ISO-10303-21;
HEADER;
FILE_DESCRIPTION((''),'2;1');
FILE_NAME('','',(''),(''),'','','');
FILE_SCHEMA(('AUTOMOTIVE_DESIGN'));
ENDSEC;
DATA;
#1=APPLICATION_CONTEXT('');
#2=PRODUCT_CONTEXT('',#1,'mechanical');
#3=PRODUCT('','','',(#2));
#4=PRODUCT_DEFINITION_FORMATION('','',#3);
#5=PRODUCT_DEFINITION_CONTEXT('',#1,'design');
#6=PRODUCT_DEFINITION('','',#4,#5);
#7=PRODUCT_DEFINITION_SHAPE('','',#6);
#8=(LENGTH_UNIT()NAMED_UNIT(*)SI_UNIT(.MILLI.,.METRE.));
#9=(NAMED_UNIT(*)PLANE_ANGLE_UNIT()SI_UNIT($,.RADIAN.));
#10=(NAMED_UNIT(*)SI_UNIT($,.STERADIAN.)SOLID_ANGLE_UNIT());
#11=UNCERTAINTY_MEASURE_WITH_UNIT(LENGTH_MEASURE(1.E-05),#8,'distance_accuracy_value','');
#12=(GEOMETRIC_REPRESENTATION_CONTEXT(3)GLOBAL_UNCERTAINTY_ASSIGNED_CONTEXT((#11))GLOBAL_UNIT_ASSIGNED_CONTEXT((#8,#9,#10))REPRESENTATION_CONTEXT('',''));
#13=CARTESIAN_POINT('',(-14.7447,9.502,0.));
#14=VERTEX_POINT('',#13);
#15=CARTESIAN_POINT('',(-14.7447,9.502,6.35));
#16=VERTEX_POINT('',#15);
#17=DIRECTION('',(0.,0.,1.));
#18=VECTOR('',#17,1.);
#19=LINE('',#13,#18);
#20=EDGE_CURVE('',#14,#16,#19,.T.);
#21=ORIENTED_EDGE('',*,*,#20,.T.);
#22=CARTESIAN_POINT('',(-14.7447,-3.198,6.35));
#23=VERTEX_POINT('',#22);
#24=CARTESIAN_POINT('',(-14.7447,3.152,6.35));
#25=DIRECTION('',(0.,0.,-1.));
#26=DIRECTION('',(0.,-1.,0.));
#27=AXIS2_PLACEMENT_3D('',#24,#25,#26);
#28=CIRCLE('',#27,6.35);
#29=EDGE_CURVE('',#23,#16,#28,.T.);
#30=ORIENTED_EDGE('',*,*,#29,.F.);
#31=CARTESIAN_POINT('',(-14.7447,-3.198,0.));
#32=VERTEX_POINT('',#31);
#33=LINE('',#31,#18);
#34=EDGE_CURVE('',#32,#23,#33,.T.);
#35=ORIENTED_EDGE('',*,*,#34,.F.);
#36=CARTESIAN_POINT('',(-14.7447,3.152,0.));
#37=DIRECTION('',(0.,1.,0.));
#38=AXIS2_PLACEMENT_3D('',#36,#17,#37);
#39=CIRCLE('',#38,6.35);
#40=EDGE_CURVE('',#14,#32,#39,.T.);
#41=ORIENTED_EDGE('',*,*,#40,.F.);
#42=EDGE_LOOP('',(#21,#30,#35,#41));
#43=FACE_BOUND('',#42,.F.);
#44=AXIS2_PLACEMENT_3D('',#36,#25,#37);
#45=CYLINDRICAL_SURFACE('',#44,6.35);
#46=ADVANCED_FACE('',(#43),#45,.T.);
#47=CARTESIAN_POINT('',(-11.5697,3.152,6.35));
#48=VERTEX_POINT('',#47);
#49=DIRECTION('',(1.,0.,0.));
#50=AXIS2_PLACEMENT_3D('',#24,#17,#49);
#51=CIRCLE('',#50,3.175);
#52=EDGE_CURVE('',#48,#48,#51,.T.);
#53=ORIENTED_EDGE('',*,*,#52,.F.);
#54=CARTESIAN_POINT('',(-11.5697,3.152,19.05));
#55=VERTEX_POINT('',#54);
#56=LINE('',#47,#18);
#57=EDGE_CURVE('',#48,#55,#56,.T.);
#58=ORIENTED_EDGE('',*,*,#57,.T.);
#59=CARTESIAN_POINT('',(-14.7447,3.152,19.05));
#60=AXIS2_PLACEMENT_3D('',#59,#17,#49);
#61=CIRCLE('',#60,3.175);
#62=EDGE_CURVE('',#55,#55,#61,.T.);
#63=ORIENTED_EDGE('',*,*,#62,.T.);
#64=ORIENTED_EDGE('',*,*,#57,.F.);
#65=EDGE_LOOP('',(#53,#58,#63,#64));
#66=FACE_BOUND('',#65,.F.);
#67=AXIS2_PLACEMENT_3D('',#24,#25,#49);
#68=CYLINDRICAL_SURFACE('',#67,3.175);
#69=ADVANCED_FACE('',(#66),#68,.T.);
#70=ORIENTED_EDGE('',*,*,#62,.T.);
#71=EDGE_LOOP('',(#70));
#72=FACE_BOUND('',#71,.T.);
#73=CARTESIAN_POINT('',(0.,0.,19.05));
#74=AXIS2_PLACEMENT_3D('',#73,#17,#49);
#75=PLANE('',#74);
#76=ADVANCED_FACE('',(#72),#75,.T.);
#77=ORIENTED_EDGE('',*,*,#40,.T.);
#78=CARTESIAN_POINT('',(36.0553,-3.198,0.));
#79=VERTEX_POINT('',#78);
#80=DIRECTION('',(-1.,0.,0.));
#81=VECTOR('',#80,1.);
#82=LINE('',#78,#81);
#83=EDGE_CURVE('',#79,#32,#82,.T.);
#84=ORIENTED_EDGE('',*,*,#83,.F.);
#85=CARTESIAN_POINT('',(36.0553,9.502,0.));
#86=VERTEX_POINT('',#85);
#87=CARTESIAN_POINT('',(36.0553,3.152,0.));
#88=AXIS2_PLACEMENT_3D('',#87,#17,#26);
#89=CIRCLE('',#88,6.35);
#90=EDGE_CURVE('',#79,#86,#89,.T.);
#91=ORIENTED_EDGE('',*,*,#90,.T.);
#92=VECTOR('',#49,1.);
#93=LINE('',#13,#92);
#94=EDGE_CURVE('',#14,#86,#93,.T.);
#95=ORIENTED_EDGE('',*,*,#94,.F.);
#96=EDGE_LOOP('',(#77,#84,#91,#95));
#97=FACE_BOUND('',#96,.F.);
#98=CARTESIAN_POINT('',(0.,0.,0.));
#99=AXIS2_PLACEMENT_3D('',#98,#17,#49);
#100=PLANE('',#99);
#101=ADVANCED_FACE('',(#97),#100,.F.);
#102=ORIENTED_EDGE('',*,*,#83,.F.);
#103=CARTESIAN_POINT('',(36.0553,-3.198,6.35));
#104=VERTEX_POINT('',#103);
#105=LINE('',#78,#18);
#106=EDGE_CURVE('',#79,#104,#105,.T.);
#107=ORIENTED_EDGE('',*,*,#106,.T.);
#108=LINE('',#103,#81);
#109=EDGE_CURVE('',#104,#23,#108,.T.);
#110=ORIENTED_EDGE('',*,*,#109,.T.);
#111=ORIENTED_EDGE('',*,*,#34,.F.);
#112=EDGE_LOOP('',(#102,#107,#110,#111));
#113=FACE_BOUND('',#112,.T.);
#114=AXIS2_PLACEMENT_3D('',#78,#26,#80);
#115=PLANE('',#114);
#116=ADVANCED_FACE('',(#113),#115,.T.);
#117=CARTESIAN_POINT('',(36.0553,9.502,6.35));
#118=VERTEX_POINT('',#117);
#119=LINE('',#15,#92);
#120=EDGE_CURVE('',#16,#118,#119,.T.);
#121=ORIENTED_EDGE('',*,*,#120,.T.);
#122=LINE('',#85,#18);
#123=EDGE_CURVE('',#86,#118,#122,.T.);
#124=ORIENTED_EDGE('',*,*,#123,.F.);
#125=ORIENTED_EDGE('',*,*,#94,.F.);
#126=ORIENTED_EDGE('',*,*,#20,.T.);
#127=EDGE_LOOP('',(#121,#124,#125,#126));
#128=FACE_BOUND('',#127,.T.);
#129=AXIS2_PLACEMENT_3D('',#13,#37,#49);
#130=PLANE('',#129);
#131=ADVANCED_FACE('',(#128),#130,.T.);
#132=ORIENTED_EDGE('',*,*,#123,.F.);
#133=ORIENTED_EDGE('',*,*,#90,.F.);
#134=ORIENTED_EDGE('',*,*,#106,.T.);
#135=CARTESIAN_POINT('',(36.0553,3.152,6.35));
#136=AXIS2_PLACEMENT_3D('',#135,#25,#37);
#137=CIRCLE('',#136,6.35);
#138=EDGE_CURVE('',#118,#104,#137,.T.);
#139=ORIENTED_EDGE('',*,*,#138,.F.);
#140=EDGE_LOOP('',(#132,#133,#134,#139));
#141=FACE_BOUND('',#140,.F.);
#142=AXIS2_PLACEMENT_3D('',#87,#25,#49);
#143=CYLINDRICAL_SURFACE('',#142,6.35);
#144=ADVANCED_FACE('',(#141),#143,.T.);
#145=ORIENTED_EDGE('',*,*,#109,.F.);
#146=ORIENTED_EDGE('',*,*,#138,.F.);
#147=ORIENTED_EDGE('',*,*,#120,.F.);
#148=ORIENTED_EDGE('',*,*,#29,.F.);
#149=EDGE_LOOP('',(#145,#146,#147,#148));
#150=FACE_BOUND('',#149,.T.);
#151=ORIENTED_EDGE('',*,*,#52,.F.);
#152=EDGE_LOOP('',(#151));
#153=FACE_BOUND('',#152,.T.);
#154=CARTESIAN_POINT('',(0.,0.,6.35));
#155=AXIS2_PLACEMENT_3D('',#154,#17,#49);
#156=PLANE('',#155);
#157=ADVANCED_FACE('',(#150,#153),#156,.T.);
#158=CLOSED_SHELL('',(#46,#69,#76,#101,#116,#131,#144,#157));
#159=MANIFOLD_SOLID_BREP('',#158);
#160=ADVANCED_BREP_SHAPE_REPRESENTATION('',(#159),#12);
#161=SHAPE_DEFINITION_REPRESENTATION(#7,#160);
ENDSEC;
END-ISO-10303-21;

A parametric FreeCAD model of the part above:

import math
import FreeCAD as App
import Part
import Sketcher
Q = App.Units.Quantity

doc = App.newDocument("Part")
params = doc.addObject("Spreadsheet::Sheet", "Params")
for row, (alias, value) in enumerate([
    ("sketch1_width", "2 in"),
    ("sketch1_radius", "0.25 in"),
    ("pad1_length", "0.25 in"),
    ("sketch2_diameter", "0.25 in"),
    ("pad2_length", "0.5 in"),
], start=1):
    params.set(f"A{row}", alias)
    params.set(f"B{row}", "=" + value)
    params.setAlias(f"B{row}", alias)

body = doc.addObject("PartDesign::Body", "Body")

# Sketch on XY plane
sketch1 = body.newObject("Sketcher::SketchObject", "Sketch")
sketch1.AttachmentSupport = (doc.getObject("XY_Plane"), [""])
sketch1.MapMode = "FlatFace"
sketch1.addGeometry(Part.LineSegment(App.Vector(36, 10, 0), App.Vector(-15, 10, 0)), False)
sketch1.addGeometry(Part.ArcOfCircle(Part.Circle(App.Vector(-15, 3, 0), App.Vector(0, 0, 1), 6), math.radians(90), math.radians(270)), False)
sketch1.addGeometry(Part.LineSegment(App.Vector(-15, -3, 0), App.Vector(36, -3, 0)), False)
sketch1.addGeometry(Part.ArcOfCircle(Part.Circle(App.Vector(36, 3, 0), App.Vector(0, 0, 1), 6), math.radians(-90), math.radians(90)), False)
sketch1.addConstraint(Sketcher.Constraint("Tangent", 0, 2, 1, 1))
sketch1.addConstraint(Sketcher.Constraint("Tangent", 1, 2, 2, 1))
sketch1.addConstraint(Sketcher.Constraint("Tangent", 2, 2, 3, 1))
sketch1.addConstraint(Sketcher.Constraint("Tangent", 3, 2, 0, 1))
sketch1.addConstraint(Sketcher.Constraint("Horizontal", 0))
sketch1.addConstraint(Sketcher.Constraint("Horizontal", 2))
sketch1.addConstraint(Sketcher.Constraint("DistanceX", 0, 2, 0, 1, Q("2 in")))
sketch1.addConstraint(Sketcher.Constraint("Radius", 1, Q("0.25 in")))
sketch1.addConstraint(Sketcher.Constraint("DistanceX", 1, 3, -1, 1, Q("0.5805 in")))
sketch1.addConstraint(Sketcher.Constraint("DistanceY", -1, 1, 1, 3, Q("0.1241 in")))
sketch1.setExpression("Constraints[6]", "Params.sketch1_width")
sketch1.setExpression("Constraints[7]", "Params.sketch1_radius")
pad1 = body.newObject("PartDesign::Pad", "Pad")
pad1.Profile = sketch1
pad1.setExpression("Length", "Params.pad1_length")

# Sketch on XY plane
sketch2 = body.newObject("Sketcher::SketchObject", "Sketch001")
sketch2.AttachmentSupport = (doc.getObject("XY_Plane"), [""])
sketch2.MapMode = "FlatFace"
sketch2.AttachmentOffset = App.Placement(App.Vector(0, 0, 0.25 * 25.4), App.Rotation())
sketch2.addGeometry(Part.Circle(App.Vector(-14.7, 3.2, 0), App.Vector(0, 0, 1), 3.2), False)
sketch2.addConstraint(Sketcher.Constraint("Diameter", 0, Q("0.25 in")))
sketch2.addConstraint(Sketcher.Constraint("DistanceX", 0, 3, -1, 1, Q("0.5805 in")))
sketch2.addConstraint(Sketcher.Constraint("DistanceY", -1, 1, 0, 3, Q("0.1241 in")))
sketch2.setExpression("Constraints[0]", "Params.sketch2_diameter")
pad2 = body.newObject("PartDesign::Pad", "Pad001")
pad2.Profile = sketch2
pad2.setExpression("Length", "Params.pad2_length")

doc.recompute()
